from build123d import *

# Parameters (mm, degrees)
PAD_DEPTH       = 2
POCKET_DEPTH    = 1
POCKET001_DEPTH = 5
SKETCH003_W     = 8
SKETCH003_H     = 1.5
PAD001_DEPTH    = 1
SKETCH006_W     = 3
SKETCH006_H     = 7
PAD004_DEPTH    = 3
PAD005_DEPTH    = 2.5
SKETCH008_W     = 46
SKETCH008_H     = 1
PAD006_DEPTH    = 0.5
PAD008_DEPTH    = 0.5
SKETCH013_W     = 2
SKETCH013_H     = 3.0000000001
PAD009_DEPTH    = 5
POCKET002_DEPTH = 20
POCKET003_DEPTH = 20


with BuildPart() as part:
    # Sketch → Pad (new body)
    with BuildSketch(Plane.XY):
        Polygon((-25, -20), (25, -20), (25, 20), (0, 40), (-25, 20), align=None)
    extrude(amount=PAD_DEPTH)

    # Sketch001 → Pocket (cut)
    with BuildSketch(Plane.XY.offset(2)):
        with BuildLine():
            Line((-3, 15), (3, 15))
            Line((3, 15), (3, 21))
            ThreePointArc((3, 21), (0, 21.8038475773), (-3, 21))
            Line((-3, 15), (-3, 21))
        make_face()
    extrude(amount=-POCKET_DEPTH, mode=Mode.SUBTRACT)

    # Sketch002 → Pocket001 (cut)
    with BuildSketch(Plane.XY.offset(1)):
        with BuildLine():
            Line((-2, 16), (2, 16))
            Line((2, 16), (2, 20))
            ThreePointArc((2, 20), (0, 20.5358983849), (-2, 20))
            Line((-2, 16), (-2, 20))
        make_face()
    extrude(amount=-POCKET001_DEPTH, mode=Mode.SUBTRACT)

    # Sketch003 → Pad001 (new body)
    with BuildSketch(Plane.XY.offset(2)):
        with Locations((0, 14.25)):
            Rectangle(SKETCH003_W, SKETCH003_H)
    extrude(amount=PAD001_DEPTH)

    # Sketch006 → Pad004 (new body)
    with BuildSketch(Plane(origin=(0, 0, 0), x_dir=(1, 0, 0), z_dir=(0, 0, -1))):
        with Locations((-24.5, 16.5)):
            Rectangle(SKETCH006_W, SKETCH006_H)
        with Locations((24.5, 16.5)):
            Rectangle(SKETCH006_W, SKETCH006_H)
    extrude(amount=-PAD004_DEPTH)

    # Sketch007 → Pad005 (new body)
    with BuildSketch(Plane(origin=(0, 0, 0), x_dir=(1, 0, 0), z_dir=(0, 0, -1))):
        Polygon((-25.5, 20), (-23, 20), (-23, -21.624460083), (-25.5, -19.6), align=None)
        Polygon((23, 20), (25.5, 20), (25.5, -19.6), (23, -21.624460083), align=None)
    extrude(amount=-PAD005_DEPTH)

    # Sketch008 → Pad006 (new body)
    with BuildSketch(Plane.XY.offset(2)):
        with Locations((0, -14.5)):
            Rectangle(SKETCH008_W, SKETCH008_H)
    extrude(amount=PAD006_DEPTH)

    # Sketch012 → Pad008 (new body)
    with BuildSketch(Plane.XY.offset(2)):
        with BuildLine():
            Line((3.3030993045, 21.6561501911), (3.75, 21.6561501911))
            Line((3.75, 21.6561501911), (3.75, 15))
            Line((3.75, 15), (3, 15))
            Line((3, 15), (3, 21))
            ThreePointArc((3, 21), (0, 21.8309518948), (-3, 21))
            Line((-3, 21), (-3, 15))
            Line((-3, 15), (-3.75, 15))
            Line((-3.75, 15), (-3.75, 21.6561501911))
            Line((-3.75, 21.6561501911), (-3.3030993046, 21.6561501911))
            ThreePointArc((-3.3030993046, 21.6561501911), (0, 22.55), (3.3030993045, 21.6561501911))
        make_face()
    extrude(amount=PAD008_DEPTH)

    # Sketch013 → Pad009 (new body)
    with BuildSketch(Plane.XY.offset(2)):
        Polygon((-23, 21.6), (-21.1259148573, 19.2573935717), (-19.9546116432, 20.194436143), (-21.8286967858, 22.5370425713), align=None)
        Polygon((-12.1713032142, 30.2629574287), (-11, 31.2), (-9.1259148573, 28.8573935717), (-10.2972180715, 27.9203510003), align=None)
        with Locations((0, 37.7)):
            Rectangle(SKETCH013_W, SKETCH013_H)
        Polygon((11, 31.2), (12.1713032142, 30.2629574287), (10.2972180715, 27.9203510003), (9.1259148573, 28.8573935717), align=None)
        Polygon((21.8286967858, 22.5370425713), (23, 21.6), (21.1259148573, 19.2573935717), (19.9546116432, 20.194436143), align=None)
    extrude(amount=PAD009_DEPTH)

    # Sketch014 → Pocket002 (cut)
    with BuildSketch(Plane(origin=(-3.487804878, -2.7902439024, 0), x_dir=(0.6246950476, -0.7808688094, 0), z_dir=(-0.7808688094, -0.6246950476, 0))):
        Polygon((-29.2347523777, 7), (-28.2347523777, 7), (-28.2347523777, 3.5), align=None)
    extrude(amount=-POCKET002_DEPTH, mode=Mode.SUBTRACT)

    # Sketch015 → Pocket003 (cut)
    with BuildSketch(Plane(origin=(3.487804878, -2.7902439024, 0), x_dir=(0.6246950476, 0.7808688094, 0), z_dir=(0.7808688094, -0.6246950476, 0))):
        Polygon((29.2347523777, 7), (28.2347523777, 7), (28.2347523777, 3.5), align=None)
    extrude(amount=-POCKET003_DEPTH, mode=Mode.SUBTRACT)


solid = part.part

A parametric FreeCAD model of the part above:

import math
import FreeCAD as App
import Part
import Sketcher
Q = App.Units.Quantity


def add_polygon(sketch, points):
    """Adds a closed chain of lines whose ends are joined by coincident constraints."""
    first, n = sketch.GeometryCount, len(points)
    for a, b in zip(points, points[1:] + points[:1]):
        sketch.addGeometry(Part.LineSegment(App.Vector(*a, 0), App.Vector(*b, 0)), False)
    for i in range(n):
        sketch.addConstraint(Sketcher.Constraint("Coincident", first + i, 2, first + (i + 1) % n, 1))

doc = App.newDocument("Part")
body = doc.addObject("PartDesign::Body", "Body")

# Sketch on XY plane
sketch1 = body.newObject("Sketcher::SketchObject", "Sketch")
sketch1.AttachmentSupport = (doc.getObject("XY_Plane"), [""])
sketch1.MapMode = "FlatFace"
add_polygon(sketch1, [(-25, -20), (25, -20), (25, 20), (0, 40), (-25, 20)])  # lines 0-4
sketch1.addConstraint(Sketcher.Constraint("Horizontal", 0))
sketch1.addConstraint(Sketcher.Constraint("Vertical", 1))
sketch1.addConstraint(Sketcher.Constraint("Vertical", 4))
sketch1.addConstraint(Sketcher.Constraint("Symmetric", 0, 2, 3, 2, -1, 1))
sketch1.addConstraint(Sketcher.Constraint("PointOnObject", 2, 2, -2))
sketch1.addConstraint(Sketcher.Constraint("Horizontal", 1, 2, 3, 2))
sketch1.addConstraint(Sketcher.Constraint("DistanceX", 0, 1, 0, 2, Q("50 mm")))
sketch1.addConstraint(Sketcher.Constraint("DistanceY", 1, 1, 1, 2, Q("40 mm")))
sketch1.addConstraint(Sketcher.Constraint("DistanceY", -1, 1, 2, 2, Q("40 mm")))
pad1 = body.newObject("PartDesign::Pad", "Pad")
pad1.Profile = sketch1
pad1.Length = 2

# Sketch on XY plane
sketch2 = body.newObject("Sketcher::SketchObject", "Sketch001")
sketch2.AttachmentSupport = (doc.getObject("XY_Plane"), [""])
sketch2.MapMode = "FlatFace"
sketch2.AttachmentOffset = App.Placement(App.Vector(0, 0, 2), App.Rotation())
sketch2.addGeometry(Part.LineSegment(App.Vector(-3, 15, 0), App.Vector(3, 15, 0)), False)
sketch2.addGeometry(Part.LineSegment(App.Vector(3, 15, 0), App.Vector(3, 21, 0)), False)
sketch2.addGeometry(Part.ArcOfCircle(Part.Circle(App.Vector(0, 16, 0), App.Vector(0, 0, 1), 6), math.radians(60), math.radians(120)), False)
sketch2.addGeometry(Part.LineSegment(App.Vector(-3, 21, 0), App.Vector(-3, 15, 0)), False)
sketch2.addConstraint(Sketcher.Constraint("Coincident", 0, 2, 1, 1))
sketch2.addConstraint(Sketcher.Constraint("Coincident", 1, 2, 2, 1))
sketch2.addConstraint(Sketcher.Constraint("Coincident", 2, 2, 3, 1))
sketch2.addConstraint(Sketcher.Constraint("Coincident", 3, 2, 0, 1))
sketch2.addConstraint(Sketcher.Constraint("Horizontal", 0))
sketch2.addConstraint(Sketcher.Constraint("Vertical", 1))
sketch2.addConstraint(Sketcher.Constraint("Vertical", 3))
sketch2.addConstraint(Sketcher.Constraint("Symmetric", 1, 2, 2, 2, -2))
sketch2.addConstraint(Sketcher.Constraint("Equal", 0, 1))
sketch2.addConstraint(Sketcher.Constraint("Radius", 2, Q("6 mm")))
sketch2.addConstraint(Sketcher.Constraint("DistanceX", 0, 1, 0, 2, Q("6 mm")))
sketch2.addConstraint(Sketcher.Constraint("DistanceY", -1, 1, 0, 2, Q("15 mm")))
pocket1 = body.newObject("PartDesign::Pocket", "Pocket")
pocket1.Profile = sketch2
pocket1.Length = 1

# Sketch on XY plane
sketch3 = body.newObject("Sketcher::SketchObject", "Sketch002")
sketch3.AttachmentSupport = (doc.getObject("XY_Plane"), [""])
sketch3.MapMode = "FlatFace"
sketch3.AttachmentOffset = App.Placement(App.Vector(0, 0, 1), App.Rotation())
sketch3.addGeometry(Part.LineSegment(App.Vector(-2, 16, 0), App.Vector(2, 16, 0)), False)
sketch3.addGeometry(Part.LineSegment(App.Vector(2, 16, 0), App.Vector(2, 20, 0)), False)
sketch3.addGeometry(Part.ArcOfCircle(Part.Circle(App.Vector(0, 16.5, 0), App.Vector(0, 0, 1), 4), math.radians(60), math.radians(120)), False)
sketch3.addGeometry(Part.LineSegment(App.Vector(-2, 20, 0), App.Vector(-2, 16, 0)), False)
sketch3.addConstraint(Sketcher.Constraint("Coincident", 0, 2, 1, 1))
sketch3.addConstraint(Sketcher.Constraint("Coincident", 1, 2, 2, 1))
sketch3.addConstraint(Sketcher.Constraint("Coincident", 2, 2, 3, 1))
sketch3.addConstraint(Sketcher.Constraint("Coincident", 3, 2, 0, 1))
sketch3.addConstraint(Sketcher.Constraint("Horizontal", 0))
sketch3.addConstraint(Sketcher.Constraint("Vertical", 1))
sketch3.addConstraint(Sketcher.Constraint("Vertical", 3))
sketch3.addConstraint(Sketcher.Constraint("Symmetric", 1, 2, 2, 2, -2))
sketch3.addConstraint(Sketcher.Constraint("Equal", 0, 1))
sketch3.addConstraint(Sketcher.Constraint("Radius", 2, Q("4 mm")))
sketch3.addConstraint(Sketcher.Constraint("DistanceX", 0, 1, 0, 2, Q("4 mm")))
sketch3.addConstraint(Sketcher.Constraint("DistanceY", -1, 1, 0, 2, Q("16 mm")))
pocket2 = body.newObject("PartDesign::Pocket", "Pocket001")
pocket2.Profile = sketch3
pocket2.Length = 5

# Sketch on XY plane
sketch4 = body.newObject("Sketcher::SketchObject", "Sketch003")
sketch4.AttachmentSupport = (doc.getObject("XY_Plane"), [""])
sketch4.MapMode = "FlatFace"
sketch4.AttachmentOffset = App.Placement(App.Vector(0, 0, 2), App.Rotation())
add_polygon(sketch4, [(-4, 15), (-4, 13.5), (4, 13.5), (4, 15)])  # lines 0-3
sketch4.addConstraint(Sketcher.Constraint("Vertical", 0))
sketch4.addConstraint(Sketcher.Constraint("Horizontal", 1))
sketch4.addConstraint(Sketcher.Constraint("Vertical", 2))
sketch4.addConstraint(Sketcher.Constraint("Horizontal", 3))
sketch4.addConstraint(Sketcher.Constraint("DistanceX", 1, 1, 1, 2, Q("8 mm")))
sketch4.addConstraint(Sketcher.Constraint("DistanceY", 0, 2, 0, 1, Q("1.5 mm")))
sketch4.addConstraint(Sketcher.Constraint("DistanceX", 0, 2, -1, 1, Q("4 mm")))
sketch4.addConstraint(Sketcher.Constraint("DistanceY", -1, 1, 2, 2, Q("15 mm")))
pad2 = body.newObject("PartDesign::Pad", "Pad001")
pad2.Profile = sketch4
pad2.Length = 1

# Sketch on XY plane
sketch5 = body.newObject("Sketcher::SketchObject", "Sketch004")
sketch5.AttachmentSupport = (doc.getObject("XY_Plane"), [""])
sketch5.MapMode = "FlatFace"
add_polygon(sketch5, [(-26, -20), (-26, -13), (-23, -13), (-23, -20)])  # lines 0-3
add_polygon(sketch5, [(23, -20), (23, -13), (26, -13), (26, -20)])  # lines 4-7
sketch5.addConstraint(Sketcher.Constraint("Vertical", 0))
sketch5.addConstraint(Sketcher.Constraint("Horizontal", 1))
sketch5.addConstraint(Sketcher.Constraint("Vertical", 2))
sketch5.addConstraint(Sketcher.Constraint("Horizontal", 3))
sketch5.addConstraint(Sketcher.Constraint("Vertical", 4))
sketch5.addConstraint(Sketcher.Constraint("Horizontal", 5))
sketch5.addConstraint(Sketcher.Constraint("Vertical", 6))
sketch5.addConstraint(Sketcher.Constraint("Horizontal", 7))
sketch5.addConstraint(Sketcher.Constraint("Symmetric", 1, 2, 4, 2, -2))
sketch5.addConstraint(Sketcher.Constraint("Symmetric", 3, 2, 6, 2, -2))
sketch5.addConstraint(Sketcher.Constraint("DistanceX", 1, 1, 1, 2, Q("3 mm")))
sketch5.addConstraint(Sketcher.Constraint("DistanceY", 0, 1, 0, 2, Q("7 mm")))
sketch5.addConstraint(Sketcher.Constraint("DistanceX", 0, 2, -1, 1, Q("26 mm")))
sketch5.addConstraint(Sketcher.Constraint("DistanceY", 0, 2, -1, 1, Q("13 mm")))
pad3 = body.newObject("PartDesign::Pad", "Pad002")
pad3.Profile = sketch5
pad3.Length = 3

# Sketch on XY plane
sketch6 = body.newObject("Sketcher::SketchObject", "Sketch005")
sketch6.AttachmentSupport = (doc.getObject("XY_Plane"), [""])
sketch6.MapMode = "FlatFace"
add_polygon(sketch6, [(-23, -20), (-25.5, -20), (-25.5, 19.6), (-23, 21.6)])  # lines 0-3
add_polygon(sketch6, [(25.5, -20), (23, -20), (23, 21.6), (25.5, 19.6)])  # lines 4-7
sketch6.addConstraint(Sketcher.Constraint("Horizontal", 0))
sketch6.addConstraint(Sketcher.Constraint("Vertical", 1))
sketch6.addConstraint(Sketcher.Constraint("Vertical", 3))
sketch6.addConstraint(Sketcher.Constraint("Horizontal", 4))
sketch6.addConstraint(Sketcher.Constraint("Vertical", 5))
sketch6.addConstraint(Sketcher.Constraint("Vertical", 7))
sketch6.addConstraint(Sketcher.Constraint("Symmetric", 3, 2, 4, 2, -2))
sketch6.addConstraint(Sketcher.Constraint("Symmetric", 1, 2, 6, 2, -2))
sketch6.addConstraint(Sketcher.Constraint("Horizontal", 2, 2, 5, 2))
sketch6.addConstraint(Sketcher.Constraint("Angle", 2, Q("39 deg")))
sketch6.addConstraint(Sketcher.Constraint("DistanceX", 0, 2, 0, 1, Q("2.5 mm")))
sketch6.addConstraint(Sketcher.Constraint("DistanceY", 1, 1, 1, 2, Q("39.6 mm")))
sketch6.addConstraint(Sketcher.Constraint("DistanceY", 0, 2, -1, 1, Q("20 mm")))
sketch6.addConstraint(Sketcher.Constraint("DistanceX", 2, 2, -1, 1, Q("23 mm")))
pad4 = body.newObject("PartDesign::Pad", "Pad003")
pad4.Profile = sketch6
pad4.Length = 2.5

# Sketch on XY plane
sketch7 = body.newObject("Sketcher::SketchObject", "Sketch006")
sketch7.AttachmentSupport = (doc.getObject("XY_Plane"), [""])
sketch7.MapMode = "FlatFace"
sketch7.AttachmentOffset = App.Placement(App.Vector(0, 0, 2), App.Rotation())
add_polygon(sketch7, [(-23, -14), (-23, -15), (23, -15), (23, -14)])  # lines 0-3
sketch7.addConstraint(Sketcher.Constraint("Vertical", 0))
sketch7.addConstraint(Sketcher.Constraint("Horizontal", 1))
sketch7.addConstraint(Sketcher.Constraint("Vertical", 2))
sketch7.addConstraint(Sketcher.Constraint("Horizontal", 3))
sketch7.addConstraint(Sketcher.Constraint("DistanceX", 1, 1, 1, 2, Q("46 mm")))
sketch7.addConstraint(Sketcher.Constraint("DistanceY", 0, 2, 0, 1, Q("1 mm")))
sketch7.addConstraint(Sketcher.Constraint("DistanceX", 0, 2, -1, 1, Q("23 mm")))
sketch7.addConstraint(Sketcher.Constraint("DistanceY", 0, 2, -1, 1, Q("15 mm")))
pad5 = body.newObject("PartDesign::Pad", "Pad004")
pad5.Profile = sketch7
pad5.Length = 0.5

# Sketch on XY plane
sketch8 = body.newObject("Sketcher::SketchObject", "Sketch007")
sketch8.AttachmentSupport = (doc.getObject("XY_Plane"), [""])
sketch8.MapMode = "FlatFace"
sketch8.AttachmentOffset = App.Placement(App.Vector(0, 0, 2), App.Rotation())
sketch8.addGeometry(Part.LineSegment(App.Vector(3.75, 21.66, 0), App.Vector(3.3, 21.66, 0)), False)
sketch8.addGeometry(Part.ArcOfCircle(Part.Circle(App.Vector(0, 16, 0), App.Vector(0, 0, 1), 6.55), math.radians(60), math.radians(120)), False)
sketch8.addGeometry(Part.LineSegment(App.Vector(-3.3, 21.66, 0), App.Vector(-3.75, 21.66, 0)), False)
sketch8.addGeometry(Part.LineSegment(App.Vector(-3.75, 21.66, 0), App.Vector(-3.75, 15, 0)), False)
sketch8.addGeometry(Part.LineSegment(App.Vector(-3.75, 15, 0), App.Vector(-3, 15, 0)), False)
sketch8.addGeometry(Part.LineSegment(App.Vector(-3, 15, 0), App.Vector(-3, 21, 0)), False)
sketch8.addGeometry(Part.ArcOfCircle(Part.Circle(App.Vector(0, 16, 0), App.Vector(0, 0, 1), 5.83), math.radians(59), math.radians(121)), False)
sketch8.addGeometry(Part.LineSegment(App.Vector(3, 21, 0), App.Vector(3, 15, 0)), False)
sketch8.addGeometry(Part.LineSegment(App.Vector(3, 15, 0), App.Vector(3.75, 15, 0)), False)
sketch8.addGeometry(Part.LineSegment(App.Vector(3.75, 15, 0), App.Vector(3.75, 21.66, 0)), False)
sketch8.addConstraint(Sketcher.Constraint("Coincident", 0, 2, 1, 1))
sketch8.addConstraint(Sketcher.Constraint("Coincident", 1, 2, 2, 1))
sketch8.addConstraint(Sketcher.Constraint("Coincident", 2, 2, 3, 1))
sketch8.addConstraint(Sketcher.Constraint("Coincident", 3, 2, 4, 1))
sketch8.addConstraint(Sketcher.Constraint("Coincident", 4, 2, 5, 1))
sketch8.addConstraint(Sketcher.Constraint("Coincident", 5, 2, 6, 2))
sketch8.addConstraint(Sketcher.Constraint("Coincident", 6, 1, 7, 1))
sketch8.addConstraint(Sketcher.Constraint("Coincident", 7, 2, 8, 1))
sketch8.addConstraint(Sketcher.Constraint("Coincident", 8, 2, 9, 1))
sketch8.addConstraint(Sketcher.Constraint("Coincident", 9, 2, 0, 1))
sketch8.addConstraint(Sketcher.Constraint("Horizontal", 0))
sketch8.addConstraint(Sketcher.Constraint("Horizontal", 2))
sketch8.addConstraint(Sketcher.Constraint("Vertical", 3))
sketch8.addConstraint(Sketcher.Constraint("Horizontal", 4))
sketch8.addConstraint(Sketcher.Constraint("Vertical", 5))
sketch8.addConstraint(Sketcher.Constraint("Vertical", 7))
sketch8.addConstraint(Sketcher.Constraint("Horizontal", 8))
sketch8.addConstraint(Sketcher.Constraint("Vertical", 9))
sketch8.addConstraint(Sketcher.Constraint("Coincident", 6, 3, 1, 3))
sketch8.addConstraint(Sketcher.Constraint("Symmetric", 0, 2, 1, 2, -2))
sketch8.addConstraint(Sketcher.Constraint("Symmetric", 4, 2, 7, 2, -2))
sketch8.addConstraint(Sketcher.Constraint("Equal", 0, 2))
sketch8.addConstraint(Sketcher.Constraint("DistanceY", 5, 1, 5, 2, Q("6 mm")))
sketch8.addConstraint(Sketcher.Constraint("Radius", 1, Q("6.55 mm")))
sketch8.addConstraint(Sketcher.Constraint("DistanceY", -1, 1, 1, 3, Q("16 mm")))
sketch8.addConstraint(Sketcher.Constraint("DistanceY", -1, 1, 3, 2, Q("15 mm")))
sketch8.addConstraint(Sketcher.Constraint("DistanceX", 4, 2, -1, 1, Q("3 mm")))
sketch8.addConstraint(Sketcher.Constraint("DistanceX", 4, 1, 4, 2, Q("0.75 mm")))
sketch8.addConstraint(Sketcher.Constraint("DistanceX", 0, 2, 0, 1, Q("0.446901 mm")))
pad6 = body.newObject("PartDesign::Pad", "Pad005")
pad6.Profile = sketch8
pad6.Length = 0.5

# Sketch on XY plane
sketch9 = body.newObject("Sketcher::SketchObject", "Sketch008")
sketch9.AttachmentSupport = (doc.getObject("XY_Plane"), [""])
sketch9.MapMode = "FlatFace"
sketch9.AttachmentOffset = App.Placement(App.Vector(0, 0, 2), App.Rotation())
add_polygon(sketch9, [(-23, 21.6), (-21.1, 19.3), (-20, 20.2), (-21.8, 22.5)])  # lines 0-3
add_polygon(sketch9, [(-11, 31.2), (-12.2, 30.3), (-10.3, 27.9), (-9.1, 28.9)])  # lines 4-7
add_polygon(sketch9, [(-1, 39.2), (-1, 36.2), (1, 36.2), (1, 39.2)])  # lines 8-11
add_polygon(sketch9, [(12.2, 30.3), (11, 31.2), (9.1, 28.9), (10.3, 27.9)])  # lines 12-15
add_polygon(sketch9, [(23, 21.6), (21.8, 22.5), (20, 20.2), (21.1, 19.3)])  # lines 16-19
sketch9.addConstraint(Sketcher.Constraint("Vertical", 8))
sketch9.addConstraint(Sketcher.Constraint("Horizontal", 9))
sketch9.addConstraint(Sketcher.Constraint("Vertical", 10))
sketch9.addConstraint(Sketcher.Constraint("Horizontal", 11))
sketch9.addConstraint(Sketcher.Constraint("Symmetric", 7, 2, 12, 2, -2))
sketch9.addConstraint(Sketcher.Constraint("Symmetric", 6, 2, 13, 2, -2))
sketch9.addConstraint(Sketcher.Constraint("Symmetric", 5, 2, 14, 2, -2))
sketch9.addConstraint(Sketcher.Constraint("Symmetric", 4, 2, 15, 2, -2))
sketch9.addConstraint(Sketcher.Constraint("Symmetric", 2, 2, 16, 2, -2))
sketch9.addConstraint(Sketcher.Constraint("Symmetric", 1, 2, 17, 2, -2))
sketch9.addConstraint(Sketcher.Constraint("Symmetric", 0, 2, 18, 2, -2))
sketch9.addConstraint(Sketcher.Constraint("Symmetric", 3, 2, 19, 2, -2))
sketch9.addConstraint(Sketcher.Constraint("Perpendicular", 0, 1))
sketch9.addConstraint(Sketcher.Constraint("Perpendicular", 1, 2))
sketch9.addConstraint(Sketcher.Constraint("Perpendicular", 2, 3))
sketch9.addConstraint(Sketcher.Constraint("Parallel", 3, 4))
sketch9.addConstraint(Sketcher.Constraint("Perpendicular", 4, 5))
sketch9.addConstraint(Sketcher.Constraint("Perpendicular", 5, 6))
sketch9.addConstraint(Sketcher.Constraint("Perpendicular", 6, 7))
sketch9.addConstraint(Sketcher.Constraint("Equal", 3, 4))
sketch9.addConstraint(Sketcher.Constraint("Equal", 2, 5))
sketch9.addConstraint(Sketcher.Constraint("DistanceX", 9, 1, 9, 2, Q("2 mm")))
sketch9.addConstraint(Sketcher.Constraint("DistanceY", 8, 2, 8, 1, Q("3 mm")))
sketch9.addConstraint(Sketcher.Constraint("Distance", 0, Q("3 mm")))
sketch9.addConstraint(Sketcher.Constraint("DistanceX", 3, 2, -1, 1, Q("23 mm")))
sketch9.addConstraint(Sketcher.Constraint("DistanceX", 7, 2, -1, 1, Q("11 mm")))
sketch9.addConstraint(Sketcher.Constraint("DistanceX", 8, 2, -1, 1, Q("1 mm")))
sketch9.addConstraint(Sketcher.Constraint("DistanceY", 7, 2, 8, 2, Q("5 mm")))
sketch9.addConstraint(Sketcher.Constraint("Distance", 1, Q("1.5 mm")))
sketch9.addConstraint(Sketcher.Constraint("DistanceY", -1, 1, 3, 2, Q("21.6 mm")))
sketch9.addConstraint(Sketcher.Constraint("DistanceY", -1, 1, 7, 2, Q("31.2 mm")))
sketch9.addConstraint(Sketcher.Constraint("DistanceX", 1, 2, -1, 1, Q("19.954612 mm")))
pad7 = body.newObject("PartDesign::Pad", "Pad006")
pad7.Profile = sketch9
pad7.Length = 5

# Sketch on an angled plane
sketch10 = body.newObject("Sketcher::SketchObject", "Sketch009")
sketch10.Placement = App.Placement(App.Vector(-3.487805, -2.790244, 0), App.Rotation(App.Vector(0.624695048, -0.780868809, 0), App.Vector(0, 0, 1), App.Vector(-0.780868809, -0.624695048, 0), "ZXY"))
add_polygon(sketch10, [(-28.2, 7), (-29.2, 7), (-28.2, 3.5)])  # lines 0-2
sketch10.addConstraint(Sketcher.Constraint("Horizontal", 0))
sketch10.addConstraint(Sketcher.Constraint("Vertical", 2))
sketch10.addConstraint(Sketcher.Constraint("DistanceX", 0, 2, 0, 1, Q("1 mm")))
sketch10.addConstraint(Sketcher.Constraint("DistanceY", 2, 1, 2, 2, Q("3.5 mm")))
sketch10.addConstraint(Sketcher.Constraint("DistanceY", -1, 1, 0, 2, Q("7 mm")))
sketch10.addConstraint(Sketcher.Constraint("DistanceX", 0, 2, -1, 1, Q("29.234752 mm")))
pocket3 = body.newObject("PartDesign::Pocket", "Pocket002")
pocket3.Profile = sketch10
pocket3.Length = 20

# Sketch on an angled plane
sketch11 = body.newObject("Sketcher::SketchObject", "Sketch010")
sketch11.Placement = App.Placement(App.Vector(3.487805, -2.790244, 0), App.Rotation(App.Vector(0.624695048, 0.780868809, 0), App.Vector(0, 0, 1), App.Vector(0.780868809, -0.624695048, 0), "ZXY"))
add_polygon(sketch11, [(29.2, 7), (28.2, 7), (28.2, 3.5)])  # lines 0-2
sketch11.addConstraint(Sketcher.Constraint("Horizontal", 0))
sketch11.addConstraint(Sketcher.Constraint("Vertical", 1))
sketch11.addConstraint(Sketcher.Constraint("DistanceX", 0, 2, 0, 1, Q("1 mm")))
sketch11.addConstraint(Sketcher.Constraint("DistanceY", 1, 2, 1, 1, Q("3.5 mm")))
sketch11.addConstraint(Sketcher.Constraint("DistanceY", -1, 1, 0, 2, Q("7 mm")))
sketch11.addConstraint(Sketcher.Constraint("DistanceX", -1, 1, 0, 2, Q("28.234752 mm")))
pocket4 = body.newObject("PartDesign::Pocket", "Pocket003")
pocket4.Profile = sketch11
pocket4.Length = 20

doc.recompute()
